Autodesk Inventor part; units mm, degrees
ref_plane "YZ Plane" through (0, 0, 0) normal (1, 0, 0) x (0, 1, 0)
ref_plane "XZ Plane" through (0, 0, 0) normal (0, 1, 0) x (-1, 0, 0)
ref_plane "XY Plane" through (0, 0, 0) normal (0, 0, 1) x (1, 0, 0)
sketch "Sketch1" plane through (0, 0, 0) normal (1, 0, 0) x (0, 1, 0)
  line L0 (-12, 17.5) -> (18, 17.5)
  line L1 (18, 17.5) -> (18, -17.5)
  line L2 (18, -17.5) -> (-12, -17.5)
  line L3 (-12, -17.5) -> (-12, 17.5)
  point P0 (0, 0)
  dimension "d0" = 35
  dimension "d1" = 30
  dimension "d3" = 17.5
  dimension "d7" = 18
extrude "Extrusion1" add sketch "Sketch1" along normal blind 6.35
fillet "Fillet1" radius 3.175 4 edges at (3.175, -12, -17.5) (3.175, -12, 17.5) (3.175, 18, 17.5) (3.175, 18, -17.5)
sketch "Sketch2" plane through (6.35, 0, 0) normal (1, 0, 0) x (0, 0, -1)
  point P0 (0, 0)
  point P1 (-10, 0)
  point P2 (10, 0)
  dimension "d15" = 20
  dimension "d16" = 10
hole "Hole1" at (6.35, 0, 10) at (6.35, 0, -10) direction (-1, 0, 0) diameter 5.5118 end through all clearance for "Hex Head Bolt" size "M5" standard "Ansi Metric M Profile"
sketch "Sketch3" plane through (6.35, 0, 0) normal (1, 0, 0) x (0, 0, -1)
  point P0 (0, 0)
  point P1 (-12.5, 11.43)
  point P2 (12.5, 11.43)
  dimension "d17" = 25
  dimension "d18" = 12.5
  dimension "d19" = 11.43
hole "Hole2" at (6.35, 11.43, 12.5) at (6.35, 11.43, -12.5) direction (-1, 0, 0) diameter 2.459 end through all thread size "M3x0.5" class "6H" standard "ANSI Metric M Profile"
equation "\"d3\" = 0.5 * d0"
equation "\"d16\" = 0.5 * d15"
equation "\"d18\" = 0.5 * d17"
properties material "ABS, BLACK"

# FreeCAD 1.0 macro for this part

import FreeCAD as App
import Part
import Sketcher
Q = App.Units.Quantity


def edges_at(feature, points):
    """Names of the edges that pass closest to the given points."""
    edges = feature.Shape.Edges
    near = lambda p: min(range(len(edges)), key=lambda i: edges[i].distToShape(Part.Vertex(*p))[0])
    return sorted({f"Edge{near(p) + 1}" for p in points})


def add_polygon(sketch, points):
    """Adds a closed chain of lines whose ends are joined by coincident constraints."""
    first, n = sketch.GeometryCount, len(points)
    for a, b in zip(points, points[1:] + points[:1]):
        sketch.addGeometry(Part.LineSegment(App.Vector(*a, 0), App.Vector(*b, 0)), False)
    for i in range(n):
        sketch.addConstraint(Sketcher.Constraint("Coincident", first + i, 2, first + (i + 1) % n, 1))

doc = App.newDocument("Part")
params = doc.addObject("Spreadsheet::Sheet", "Params")
for row, (alias, value) in enumerate([
    ("pad1_length", "0.25 in"),
    ("fillet_radius", "0.125 in"),
    ("sketch2_diameter", "0.217 in"),
    ("hole_diameter", "0.217 in"),
    ("hole2_diameter", "0.096811 in"),
], start=1):
    params.set(f"A{row}", alias)
    params.set(f"B{row}", "=" + value)
    params.setAlias(f"B{row}", alias)

body = doc.addObject("PartDesign::Body", "Body")

# Sketch on YZ plane
sketch1 = doc.addObject("Sketcher::SketchObject", "Sketch")
body.addObject(sketch1)
sketch1.AttachmentSupport = (doc.YZ_Plane, [""])
sketch1.MapMode = "FlatFace"
add_polygon(sketch1, [(18, 18), (-12, 18), (-12, -18), (18, -18)])  # lines 0-3
sketch1.addConstraint([
    Sketcher.Constraint("Horizontal", 0),
    Sketcher.Constraint("Vertical", 1),
    Sketcher.Constraint("Horizontal", 2),
    Sketcher.Constraint("Vertical", 3),
    Sketcher.Constraint("DistanceX", 0, 2, 0, 1, Q("1.1811 in")),
    Sketcher.Constraint("DistanceY", 1, 2, 1, 1, 35.0),
    Sketcher.Constraint("DistanceY", -1, 1, 0, 2, 17.5),
    Sketcher.Constraint("DistanceX", -1, 1, 2, 2, 18.0),
])
pad1 = doc.addObject("PartDesign::Pad", "Pad")
body.addObject(pad1)
pad1.Profile = sketch1
pad1.setExpression("Length", "Params.pad1_length")
doc.recompute()

fillet = doc.addObject("PartDesign::Fillet", "Fillet")
body.addObject(fillet)
fillet.Base = (pad1, edges_at(pad1, [
    (3.175, -12, -17.5),
    (3.175, -12, 17.5),
    (3.175, 18, 17.5),
    (3.175, 18, -17.5),
]))
fillet.setExpression("Radius", "Params.fillet_radius")

# Sketch on YZ plane
sketch2 = doc.addObject("Sketcher::SketchObject", "Sketch001")
body.addObject(sketch2)
sketch2.AttachmentSupport = (doc.YZ_Plane, [""])
sketch2.MapMode = "FlatFace"
sketch2.AttachmentOffset = App.Placement(App.Vector(0, 0, 0.25 * 25.4), App.Rotation())
sketch2.addGeometry([
    Part.Circle(App.Vector(0, 10, 0), App.Vector(0, 0, 1), 2.8),
    Part.Circle(App.Vector(0, -10, 0), App.Vector(0, 0, 1), 2.8),
], False)
sketch2.addConstraint([
    Sketcher.Constraint("Equal", 0, 1),
    Sketcher.Constraint("Symmetric", 0, 3, 1, 3, -1, 1),
    Sketcher.Constraint("PointOnObject", 0, 3, -2),
    Sketcher.Constraint("Diameter", 0, Q("0.217 in")),
    Sketcher.Constraint("DistanceY", -1, 1, 0, 3, Q("0.3937 in")),
])
sketch2.setExpression("Constraints[3]", "Params.sketch2_diameter")
doc.recompute()
hole = doc.addObject("PartDesign::Hole", "Hole")
body.addObject(hole)
hole.Profile = sketch2
hole.ThreadType = "None"
hole.setExpression("Diameter", "Params.hole_diameter")
hole.DepthType = "ThroughAll"

# Sketch on YZ plane
sketch3 = doc.addObject("Sketcher::SketchObject", "Sketch002")
body.addObject(sketch3)
sketch3.AttachmentSupport = (doc.YZ_Plane, [""])
sketch3.MapMode = "FlatFace"
sketch3.AttachmentOffset = App.Placement(App.Vector(0, 0, 0.25 * 25.4), App.Rotation())
sketch3.addGeometry([
    Part.Circle(App.Vector(11.4, 12.5, 0), App.Vector(0, 0, 1), 1.2),
    Part.Circle(App.Vector(11.4, -12.5, 0), App.Vector(0, 0, 1), 1.2),
], False)
sketch3.addConstraint([
    Sketcher.Constraint("Equal", 0, 1),
    Sketcher.Constraint("Symmetric", 0, 3, 1, 3, -1),
    Sketcher.Constraint("Diameter", 0, Q("0.0968 in")),
    Sketcher.Constraint("DistanceX", -1, 1, 0, 3, Q("0.45 in")),
    Sketcher.Constraint("DistanceY", -1, 1, 0, 3, 12.5),
])
doc.recompute()
hole2 = doc.addObject("PartDesign::Hole", "Hole001")
body.addObject(hole2)
hole2.Profile = sketch3
hole2.ThreadType = "None"
hole2.setExpression("Diameter", "Params.hole2_diameter")
hole2.DepthType = "ThroughAll"

doc.recompute()
